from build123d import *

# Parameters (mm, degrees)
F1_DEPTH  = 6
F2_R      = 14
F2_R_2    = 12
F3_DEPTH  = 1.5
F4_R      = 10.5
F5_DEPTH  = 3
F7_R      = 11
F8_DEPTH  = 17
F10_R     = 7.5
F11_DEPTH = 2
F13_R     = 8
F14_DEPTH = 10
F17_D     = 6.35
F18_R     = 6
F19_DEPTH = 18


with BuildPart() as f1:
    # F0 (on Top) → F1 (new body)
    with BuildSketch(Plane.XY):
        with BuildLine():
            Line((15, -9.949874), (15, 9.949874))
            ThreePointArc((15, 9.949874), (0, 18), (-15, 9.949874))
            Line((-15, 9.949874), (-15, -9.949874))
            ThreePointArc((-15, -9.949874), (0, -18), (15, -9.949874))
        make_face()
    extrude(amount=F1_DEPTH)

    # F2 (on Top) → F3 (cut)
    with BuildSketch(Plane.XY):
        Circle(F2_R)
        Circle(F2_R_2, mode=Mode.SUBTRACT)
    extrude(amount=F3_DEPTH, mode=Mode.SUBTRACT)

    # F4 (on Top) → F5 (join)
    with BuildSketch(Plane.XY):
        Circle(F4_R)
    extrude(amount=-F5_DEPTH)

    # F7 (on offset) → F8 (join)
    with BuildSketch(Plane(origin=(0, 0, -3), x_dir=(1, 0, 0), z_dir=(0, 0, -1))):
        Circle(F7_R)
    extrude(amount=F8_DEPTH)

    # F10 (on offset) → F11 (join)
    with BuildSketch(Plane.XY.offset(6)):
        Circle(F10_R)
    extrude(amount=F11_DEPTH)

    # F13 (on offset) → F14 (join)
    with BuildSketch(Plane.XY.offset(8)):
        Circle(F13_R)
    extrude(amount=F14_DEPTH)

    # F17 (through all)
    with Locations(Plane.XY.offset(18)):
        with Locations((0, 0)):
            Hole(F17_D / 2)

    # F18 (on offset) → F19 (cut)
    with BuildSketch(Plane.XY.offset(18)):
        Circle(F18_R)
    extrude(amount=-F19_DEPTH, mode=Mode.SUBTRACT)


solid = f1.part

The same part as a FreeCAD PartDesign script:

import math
import FreeCAD as App
import Part
import Sketcher
from FreeCAD import Vector
Q = App.Units.Quantity

doc = App.newDocument("Part")
params = doc.addObject("Spreadsheet::Sheet", "Params")
for row, (alias, value) in enumerate([
    ("sketch1_radius", "18 mm"),
    ("pad1_length", "6 mm"),
    ("sketch2_diameter", "28 mm"),
    ("sketch2_diameter2", "24 mm"),
    ("pocket1_length", "1.5 mm"),
    ("sketch3_diameter", "21 mm"),
    ("pad2_length", "3 mm"),
    ("sketch4_diameter", "22 mm"),
    ("pad3_length", "17 mm"),
    ("sketch5_diameter", "15 mm"),
    ("pad4_length", "2 mm"),
    ("sketch6_diameter", "16 mm"),
    ("pad5_length", "10 mm"),
    ("sketch7_diameter", "6.35 mm"),
    ("hole_diameter", "6.35 mm"),
    ("sketch8_diameter", "12 mm"),
    ("pocket2_length", "18 mm"),
], start=1):
    params.set(f"A{row}", alias)
    params.set(f"B{row}", "=" + value)
    params.setAlias(f"B{row}", alias)

body = doc.addObject("PartDesign::Body", "Body")

sketch1 = body.newObject("Sketcher::SketchObject", "Sketch")
sketch1.AttachmentSupport = (doc.getObject("XY_Plane"), [""])
sketch1.MapMode = "FlatFace"
sketch1.addGeometry([
    Part.LineSegment(Vector(15, -10, 0), Vector(15, 10, 0)),
    Part.ArcOfCircle(Part.Circle(Vector(0, 0, 0), Vector(0, 0, 1), 18), math.radians(34), math.radians(146)),
    Part.LineSegment(Vector(-15, 10, 0), Vector(-15, -10, 0)),
    Part.ArcOfCircle(Part.Circle(Vector(0, 0, 0), Vector(0, 0, 1), 18), math.radians(-146), math.radians(-34)),
], False)
sketch1.addConstraint([
    Sketcher.Constraint("Coincident", 0, 2, 1, 1),
    Sketcher.Constraint("Coincident", 1, 2, 2, 1),
    Sketcher.Constraint("Coincident", 2, 2, 3, 1),
    Sketcher.Constraint("Coincident", 3, 2, 0, 1),
    Sketcher.Constraint("Vertical", 0),
    Sketcher.Constraint("Vertical", 2),
    Sketcher.Constraint("Coincident", 1, 3, -1, 1),
    Sketcher.Constraint("Coincident", 3, 3, -1, 1),
    Sketcher.Constraint("Equal", 1, 3),
    Sketcher.Constraint("Horizontal", 0, 2, 1, 2),
    Sketcher.Constraint("Radius", 1, Q("18 mm")),
    Sketcher.Constraint("DistanceX", -1, 1, 0, 2, Q("15 mm")),
])
sketch1.setExpression("Constraints[10]", "Params.sketch1_radius")
pad1 = body.newObject("PartDesign::Pad", "Pad")
pad1.Profile = sketch1
pad1.setExpression("Length", "Params.pad1_length")

sketch2 = body.newObject("Sketcher::SketchObject", "Sketch001")
sketch2.AttachmentSupport = (doc.getObject("XY_Plane"), [""])
sketch2.MapMode = "FlatFace"
sketch2.addGeometry([
    Part.Circle(Vector(0, 0, 0), Vector(0, 0, 1), 14),
    Part.Circle(Vector(0, 0, 0), Vector(0, 0, 1), 12),
], False)
sketch2.addConstraint([
    Sketcher.Constraint("Coincident", 0, 3, -1, 1),
    Sketcher.Constraint("Coincident", 1, 3, -1, 1),
    Sketcher.Constraint("Diameter", 0, Q("28 mm")),
    Sketcher.Constraint("Diameter", 1, Q("24 mm")),
])
sketch2.setExpression("Constraints[2]", "Params.sketch2_diameter")
sketch2.setExpression("Constraints[3]", "Params.sketch2_diameter2")
pocket1 = body.newObject("PartDesign::Pocket", "Pocket")
pocket1.Profile = sketch2
pocket1.setExpression("Length", "Params.pocket1_length")
pocket1.Reversed = True

sketch3 = body.newObject("Sketcher::SketchObject", "Sketch002")
sketch3.AttachmentSupport = (doc.getObject("XY_Plane"), [""])
sketch3.MapMode = "FlatFace"
sketch3.addGeometry(Part.Circle(Vector(0, 0, 0), Vector(0, 0, 1), 10), False)
sketch3.addConstraint([
    Sketcher.Constraint("Coincident", 0, 3, -1, 1),
    Sketcher.Constraint("Diameter", 0, Q("21 mm")),
])
sketch3.setExpression("Constraints[1]", "Params.sketch3_diameter")
pad2 = body.newObject("PartDesign::Pad", "Pad001")
pad2.Profile = sketch3
pad2.setExpression("Length", "Params.pad2_length")
pad2.Reversed = True

sketch4 = body.newObject("Sketcher::SketchObject", "Sketch003")
sketch4.AttachmentSupport = (doc.getObject("XY_Plane"), [""])
sketch4.MapMode = "FlatFace"
sketch4.AttachmentOffset = App.Placement(Vector(0, 0, -3), App.Rotation())
sketch4.addGeometry(Part.Circle(Vector(0, 0, 0), Vector(0, 0, 1), 11), False)
sketch4.addConstraint([
    Sketcher.Constraint("Coincident", 0, 3, -1, 1),
    Sketcher.Constraint("Diameter", 0, Q("22 mm")),
])
sketch4.setExpression("Constraints[1]", "Params.sketch4_diameter")
pad3 = body.newObject("PartDesign::Pad", "Pad002")
pad3.Profile = sketch4
pad3.setExpression("Length", "Params.pad3_length")
pad3.Reversed = True

sketch5 = body.newObject("Sketcher::SketchObject", "Sketch004")
sketch5.AttachmentSupport = (doc.getObject("XY_Plane"), [""])
sketch5.MapMode = "FlatFace"
sketch5.AttachmentOffset = App.Placement(Vector(0, 0, 6), App.Rotation())
sketch5.addGeometry(Part.Circle(Vector(0, 0, 0), Vector(0, 0, 1), 8), False)
sketch5.addConstraint([
    Sketcher.Constraint("Coincident", 0, 3, -1, 1),
    Sketcher.Constraint("Diameter", 0, Q("15 mm")),
])
sketch5.setExpression("Constraints[1]", "Params.sketch5_diameter")
pad4 = body.newObject("PartDesign::Pad", "Pad003")
pad4.Profile = sketch5
pad4.setExpression("Length", "Params.pad4_length")

sketch6 = body.newObject("Sketcher::SketchObject", "Sketch005")
sketch6.AttachmentSupport = (doc.getObject("XY_Plane"), [""])
sketch6.MapMode = "FlatFace"
sketch6.AttachmentOffset = App.Placement(Vector(0, 0, 8), App.Rotation())
sketch6.addGeometry(Part.Circle(Vector(0, 0, 0), Vector(0, 0, 1), 8), False)
sketch6.addConstraint([
    Sketcher.Constraint("Coincident", 0, 3, -1, 1),
    Sketcher.Constraint("Diameter", 0, Q("16 mm")),
])
sketch6.setExpression("Constraints[1]", "Params.sketch6_diameter")
pad5 = body.newObject("PartDesign::Pad", "Pad004")
pad5.Profile = sketch6
pad5.setExpression("Length", "Params.pad5_length")

sketch7 = body.newObject("Sketcher::SketchObject", "Sketch006")
sketch7.AttachmentSupport = (doc.getObject("XY_Plane"), [""])
sketch7.MapMode = "FlatFace"
sketch7.AttachmentOffset = App.Placement(Vector(0, 0, 18), App.Rotation())
sketch7.addGeometry(Part.Circle(Vector(0, 0, 0), Vector(0, 0, 1), 3.2), False)
sketch7.addConstraint([
    Sketcher.Constraint("Coincident", 0, 3, -1, 1),
    Sketcher.Constraint("Diameter", 0, Q("6.35 mm")),
])
sketch7.setExpression("Constraints[1]", "Params.sketch7_diameter")
doc.recompute()
hole = body.newObject("PartDesign::Hole", "Hole")
hole.Profile = sketch7
hole.ThreadType = "None"
hole.setExpression("Diameter", "Params.hole_diameter")
hole.DepthType = "ThroughAll"

sketch8 = body.newObject("Sketcher::SketchObject", "Sketch007")
sketch8.AttachmentSupport = (doc.getObject("XY_Plane"), [""])
sketch8.MapMode = "FlatFace"
sketch8.AttachmentOffset = App.Placement(Vector(0, 0, 18), App.Rotation())
sketch8.addGeometry(Part.Circle(Vector(0, 0, 0), Vector(0, 0, 1), 6), False)
sketch8.addConstraint([
    Sketcher.Constraint("Coincident", 0, 3, -1, 1),
    Sketcher.Constraint("Diameter", 0, Q("12 mm")),
])
sketch8.setExpression("Constraints[1]", "Params.sketch8_diameter")
pocket2 = body.newObject("PartDesign::Pocket", "Pocket001")
pocket2.Profile = sketch8
pocket2.setExpression("Length", "Params.pocket2_length")

doc.recompute()
